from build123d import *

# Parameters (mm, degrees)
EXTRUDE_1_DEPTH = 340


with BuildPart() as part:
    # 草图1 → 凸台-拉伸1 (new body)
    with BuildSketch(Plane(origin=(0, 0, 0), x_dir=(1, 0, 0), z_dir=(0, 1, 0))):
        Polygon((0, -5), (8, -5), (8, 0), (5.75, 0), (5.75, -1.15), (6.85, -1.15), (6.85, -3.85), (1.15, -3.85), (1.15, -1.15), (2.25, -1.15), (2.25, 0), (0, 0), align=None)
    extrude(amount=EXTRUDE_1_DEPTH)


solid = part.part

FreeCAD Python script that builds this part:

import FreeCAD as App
import Part
import Sketcher
from FreeCAD import Vector


def add_polygon(sketch, points):
    """Adds a closed chain of lines whose ends are joined by coincident constraints."""
    first, n = sketch.GeometryCount, len(points)
    for a, b in zip(points, points[1:] + points[:1]):
        sketch.addGeometry(Part.LineSegment(App.Vector(*a, 0), App.Vector(*b, 0)), False)
    for i in range(n):
        sketch.addConstraint(Sketcher.Constraint("Coincident", first + i, 2, first + (i + 1) % n, 1))

doc = App.newDocument("Part")
params = doc.addObject("Spreadsheet::Sheet", "Params")
for row, (alias, value) in enumerate([
    ("sketch1_width", "8 mm"),
    ("sketch1_height", "5 mm"),
    ("sketch1_width2", "1.1 mm"),
    ("sketch1_width3", "5.7 mm"),
    ("sketch1_height2", "2.7 mm"),
    ("pad1_length", "340 mm"),
], start=1):
    params.set(f"A{row}", alias)
    params.set(f"B{row}", "=" + value)
    params.setAlias(f"B{row}", alias)

body = doc.addObject("PartDesign::Body", "Body")

# Sketch on XZ plane
sketch1 = body.newObject("Sketcher::SketchObject", "Sketch")
sketch1.AttachmentSupport = (doc.getObject("XZ_Plane"), [""])
sketch1.MapMode = "FlatFace"
add_polygon(sketch1, [(0, 5), (8, 5), (8, 0), (5.8, 0), (5.8, 1.1), (6.8, 1.1), (6.8, 3.9), (1.1, 3.9), (1.1, 1.1), (2.2, 1.1), (2.2, 0), (0, 0)])  # lines 0-11
sketch1.addConstraint(Sketcher.Constraint("Horizontal", 0))
sketch1.addConstraint(Sketcher.Constraint("Vertical", 1))
sketch1.addConstraint(Sketcher.Constraint("Horizontal", 2))
sketch1.addConstraint(Sketcher.Constraint("Vertical", 3))
sketch1.addConstraint(Sketcher.Constraint("Horizontal", 4))
sketch1.addConstraint(Sketcher.Constraint("Vertical", 5))
sketch1.addConstraint(Sketcher.Constraint("Horizontal", 6))
sketch1.addConstraint(Sketcher.Constraint("Vertical", 7))
sketch1.addConstraint(Sketcher.Constraint("Horizontal", 8))
sketch1.addConstraint(Sketcher.Constraint("Vertical", 9))
sketch1.addConstraint(Sketcher.Constraint("Horizontal", 10))
sketch1.addConstraint(Sketcher.Constraint("Vertical", 11))
sketch1.addConstraint(Sketcher.Constraint("Coincident", 10, 2, -1, 1))
sketch1.addConstraint(Sketcher.Constraint("PointOnObject", 1, 2, -1))
sketch1.addConstraint(Sketcher.Constraint("Horizontal", 4, 2, 7, 2))
sketch1.addConstraint(Sketcher.Constraint("Equal", 4, 8))
sketch1.addConstraint(Sketcher.Constraint("Equal", 2, 10))
sketch1.addConstraint(Sketcher.Constraint("DistanceX", 0, 1, 0, 2, 8.0))
sketch1.addConstraint(Sketcher.Constraint("DistanceY", 1, 2, 1, 1, 5.0))
sketch1.addConstraint(Sketcher.Constraint("DistanceX", 4, 1, 4, 2, 1.1))
sketch1.addConstraint(Sketcher.Constraint("DistanceX", 6, 2, 6, 1, 5.7))
sketch1.addConstraint(Sketcher.Constraint("DistanceY", 5, 1, 5, 2, 2.7))
sketch1.addConstraint(Sketcher.Constraint("DistanceY", 3, 1, 3, 2, 1.15))
sketch1.setExpression("Constraints[29]", "Params.sketch1_width")
sketch1.setExpression("Constraints[30]", "Params.sketch1_height")
sketch1.setExpression("Constraints[31]", "Params.sketch1_width2")
sketch1.setExpression("Constraints[32]", "Params.sketch1_width3")
sketch1.setExpression("Constraints[33]", "Params.sketch1_height2")
pad1 = body.newObject("PartDesign::Pad", "Pad")
pad1.Profile = sketch1
pad1.setExpression("Length", "Params.pad1_length")
pad1.Reversed = True

doc.recompute()
